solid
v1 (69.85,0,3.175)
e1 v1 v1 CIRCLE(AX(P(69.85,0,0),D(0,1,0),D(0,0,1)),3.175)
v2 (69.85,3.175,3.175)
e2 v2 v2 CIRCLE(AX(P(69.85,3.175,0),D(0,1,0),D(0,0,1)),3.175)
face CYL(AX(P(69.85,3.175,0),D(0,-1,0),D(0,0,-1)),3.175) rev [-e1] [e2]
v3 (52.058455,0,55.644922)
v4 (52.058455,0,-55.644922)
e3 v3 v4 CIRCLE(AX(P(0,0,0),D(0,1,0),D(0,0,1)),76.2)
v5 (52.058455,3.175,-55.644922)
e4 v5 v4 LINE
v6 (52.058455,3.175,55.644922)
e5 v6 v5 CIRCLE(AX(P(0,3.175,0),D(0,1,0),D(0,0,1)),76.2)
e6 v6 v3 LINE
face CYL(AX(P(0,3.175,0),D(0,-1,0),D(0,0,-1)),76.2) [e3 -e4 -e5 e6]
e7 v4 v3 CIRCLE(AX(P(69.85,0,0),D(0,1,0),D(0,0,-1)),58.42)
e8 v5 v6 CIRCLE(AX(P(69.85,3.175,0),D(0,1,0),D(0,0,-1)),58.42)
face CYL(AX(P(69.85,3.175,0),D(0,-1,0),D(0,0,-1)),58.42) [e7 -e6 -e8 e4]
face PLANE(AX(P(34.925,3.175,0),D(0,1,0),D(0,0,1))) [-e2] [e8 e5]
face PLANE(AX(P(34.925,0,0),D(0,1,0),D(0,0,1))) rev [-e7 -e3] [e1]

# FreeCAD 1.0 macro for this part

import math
import FreeCAD as App
import Part
import Sketcher

V = App.Vector
Q = App.Units.Quantity

doc = App.newDocument("Part")
body = doc.addObject("PartDesign::Body", "Body")

# Sketch on XZ plane
sketch1 = doc.addObject("Sketcher::SketchObject", "Sketch")
body.addObject(sketch1)
sketch1.AttachmentSupport = (doc.XZ_Plane, [""])
sketch1.MapMode = "FlatFace"
sketch1.addGeometry([
    Part.ArcOfCircle(Part.Circle(V(0, 0, 0), V(0, 0, 1), 76.2), math.radians(-47), math.radians(0)),
    Part.ArcOfCircle(Part.Circle(V(69.8, 0, 0), V(0, 0, 1), 58.4), math.radians(108), math.radians(252)),
    Part.ArcOfCircle(Part.Circle(V(0, 0, 0), V(0, 0, 1), 76.2), math.radians(0), math.radians(47)),
    Part.Circle(V(69.8, 0, 0), V(0, 0, 1), 3.2),
], False)
sketch1.addConstraint([
    Sketcher.Constraint("Coincident", 0, 1, 1, 2),
    Sketcher.Constraint("Coincident", 1, 1, 2, 2),
    Sketcher.Constraint("Tangent", 2, 1, 0, 2),
    Sketcher.Constraint("Coincident", 0, 3, -1, 1),
    Sketcher.Constraint("Coincident", 3, 3, 1, 3),
    Sketcher.Constraint("Equal", 0, 2),
    Sketcher.Constraint("PointOnObject", 1, 3, -1),
    Sketcher.Constraint("PointOnObject", 2, 1, -1),
    Sketcher.Constraint("Radius", 0, Q("3 in")),
    Sketcher.Constraint("Radius", 1, Q("2.3 in")),
    Sketcher.Constraint("Diameter", 3, Q("0.25 in")),
    Sketcher.Constraint("DistanceX", -1, 1, 1, 3, Q("2.75 in")),
])
pad1 = doc.addObject("PartDesign::Pad", "Pad")
body.addObject(pad1)
pad1.Profile = sketch1
pad1.Length = Q("0.125 in")
pad1.Reversed = True

doc.recompute()
